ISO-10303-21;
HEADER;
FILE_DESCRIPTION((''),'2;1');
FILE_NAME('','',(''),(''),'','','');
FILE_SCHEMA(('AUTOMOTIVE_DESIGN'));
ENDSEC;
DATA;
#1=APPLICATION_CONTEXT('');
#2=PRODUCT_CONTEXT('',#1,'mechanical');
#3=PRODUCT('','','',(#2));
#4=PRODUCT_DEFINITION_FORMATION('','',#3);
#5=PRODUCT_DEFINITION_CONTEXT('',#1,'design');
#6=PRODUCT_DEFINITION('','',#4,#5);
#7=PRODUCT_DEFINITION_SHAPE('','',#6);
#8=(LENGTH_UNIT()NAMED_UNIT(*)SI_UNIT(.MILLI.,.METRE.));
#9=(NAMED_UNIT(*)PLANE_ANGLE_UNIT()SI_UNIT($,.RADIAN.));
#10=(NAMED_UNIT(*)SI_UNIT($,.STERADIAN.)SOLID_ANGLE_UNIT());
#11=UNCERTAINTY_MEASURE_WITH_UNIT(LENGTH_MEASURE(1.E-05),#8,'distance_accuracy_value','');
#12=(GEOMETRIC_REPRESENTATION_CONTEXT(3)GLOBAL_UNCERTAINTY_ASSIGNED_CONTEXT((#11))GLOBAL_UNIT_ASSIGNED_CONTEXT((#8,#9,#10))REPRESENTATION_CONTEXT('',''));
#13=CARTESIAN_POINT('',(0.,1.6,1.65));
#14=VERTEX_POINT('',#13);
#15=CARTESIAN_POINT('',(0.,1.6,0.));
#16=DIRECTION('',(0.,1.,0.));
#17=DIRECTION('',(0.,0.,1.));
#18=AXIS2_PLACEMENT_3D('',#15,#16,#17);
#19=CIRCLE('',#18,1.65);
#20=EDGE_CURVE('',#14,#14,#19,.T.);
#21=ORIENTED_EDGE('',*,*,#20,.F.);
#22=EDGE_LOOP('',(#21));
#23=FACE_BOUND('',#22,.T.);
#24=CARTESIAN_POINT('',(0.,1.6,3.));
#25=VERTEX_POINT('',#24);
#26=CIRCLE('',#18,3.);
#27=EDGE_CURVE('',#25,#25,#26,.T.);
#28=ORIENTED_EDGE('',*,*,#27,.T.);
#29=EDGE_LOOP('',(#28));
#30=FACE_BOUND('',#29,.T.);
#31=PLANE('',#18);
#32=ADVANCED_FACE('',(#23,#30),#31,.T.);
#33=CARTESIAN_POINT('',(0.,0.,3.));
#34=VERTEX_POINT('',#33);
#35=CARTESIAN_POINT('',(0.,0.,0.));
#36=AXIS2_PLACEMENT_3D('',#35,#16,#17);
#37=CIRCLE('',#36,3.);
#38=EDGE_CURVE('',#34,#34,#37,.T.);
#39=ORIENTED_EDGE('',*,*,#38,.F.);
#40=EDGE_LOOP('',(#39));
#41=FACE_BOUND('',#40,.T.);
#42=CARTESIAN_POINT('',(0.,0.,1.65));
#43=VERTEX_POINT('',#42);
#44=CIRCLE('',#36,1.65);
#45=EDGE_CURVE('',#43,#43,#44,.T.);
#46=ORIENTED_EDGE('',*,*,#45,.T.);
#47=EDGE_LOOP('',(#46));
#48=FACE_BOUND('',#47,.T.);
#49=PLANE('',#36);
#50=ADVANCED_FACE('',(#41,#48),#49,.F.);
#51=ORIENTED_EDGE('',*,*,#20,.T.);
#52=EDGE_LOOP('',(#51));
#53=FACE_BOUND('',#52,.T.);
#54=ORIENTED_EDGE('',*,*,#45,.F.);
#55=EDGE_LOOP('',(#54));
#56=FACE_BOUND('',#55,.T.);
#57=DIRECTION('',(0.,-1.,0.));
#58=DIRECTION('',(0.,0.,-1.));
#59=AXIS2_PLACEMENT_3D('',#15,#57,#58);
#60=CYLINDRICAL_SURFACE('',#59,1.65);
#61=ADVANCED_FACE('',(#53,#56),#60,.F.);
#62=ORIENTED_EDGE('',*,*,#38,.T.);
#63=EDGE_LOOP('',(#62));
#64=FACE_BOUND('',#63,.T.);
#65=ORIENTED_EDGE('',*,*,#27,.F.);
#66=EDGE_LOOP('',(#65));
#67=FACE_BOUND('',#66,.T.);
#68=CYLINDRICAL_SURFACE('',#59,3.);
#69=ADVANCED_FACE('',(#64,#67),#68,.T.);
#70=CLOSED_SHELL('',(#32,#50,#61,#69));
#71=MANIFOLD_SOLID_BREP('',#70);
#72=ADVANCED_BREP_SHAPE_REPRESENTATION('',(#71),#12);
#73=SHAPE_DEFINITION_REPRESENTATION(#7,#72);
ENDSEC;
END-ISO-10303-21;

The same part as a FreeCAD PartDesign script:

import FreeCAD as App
import Part
import Sketcher

V = App.Vector

doc = App.newDocument("Part")
body = doc.addObject("PartDesign::Body", "Body")

# Sketch on XZ plane
sketch1 = body.newObject("Sketcher::SketchObject", "Sketch")
sketch1.AttachmentSupport = (doc.getObject("XZ_Plane"), [""])
sketch1.MapMode = "FlatFace"
sketch1.addGeometry(Part.Circle(V(0, 0, 0), V(0, 0, 1), 3), False)
sketch1.addGeometry(Part.Circle(V(0, 0, 0), V(0, 0, 1), 1.6), False)
sketch1.addConstraint(Sketcher.Constraint("Coincident", 0, 3, -1, 1))
sketch1.addConstraint(Sketcher.Constraint("Coincident", 1, 3, -1, 1))
sketch1.addConstraint(Sketcher.Constraint("Diameter", 0, 6.0))
sketch1.addConstraint(Sketcher.Constraint("Diameter", 1, 3.3))
pad1 = body.newObject("PartDesign::Pad", "Pad")
pad1.Profile = sketch1
pad1.Length = 1.6
pad1.Reversed = True

doc.recompute()
